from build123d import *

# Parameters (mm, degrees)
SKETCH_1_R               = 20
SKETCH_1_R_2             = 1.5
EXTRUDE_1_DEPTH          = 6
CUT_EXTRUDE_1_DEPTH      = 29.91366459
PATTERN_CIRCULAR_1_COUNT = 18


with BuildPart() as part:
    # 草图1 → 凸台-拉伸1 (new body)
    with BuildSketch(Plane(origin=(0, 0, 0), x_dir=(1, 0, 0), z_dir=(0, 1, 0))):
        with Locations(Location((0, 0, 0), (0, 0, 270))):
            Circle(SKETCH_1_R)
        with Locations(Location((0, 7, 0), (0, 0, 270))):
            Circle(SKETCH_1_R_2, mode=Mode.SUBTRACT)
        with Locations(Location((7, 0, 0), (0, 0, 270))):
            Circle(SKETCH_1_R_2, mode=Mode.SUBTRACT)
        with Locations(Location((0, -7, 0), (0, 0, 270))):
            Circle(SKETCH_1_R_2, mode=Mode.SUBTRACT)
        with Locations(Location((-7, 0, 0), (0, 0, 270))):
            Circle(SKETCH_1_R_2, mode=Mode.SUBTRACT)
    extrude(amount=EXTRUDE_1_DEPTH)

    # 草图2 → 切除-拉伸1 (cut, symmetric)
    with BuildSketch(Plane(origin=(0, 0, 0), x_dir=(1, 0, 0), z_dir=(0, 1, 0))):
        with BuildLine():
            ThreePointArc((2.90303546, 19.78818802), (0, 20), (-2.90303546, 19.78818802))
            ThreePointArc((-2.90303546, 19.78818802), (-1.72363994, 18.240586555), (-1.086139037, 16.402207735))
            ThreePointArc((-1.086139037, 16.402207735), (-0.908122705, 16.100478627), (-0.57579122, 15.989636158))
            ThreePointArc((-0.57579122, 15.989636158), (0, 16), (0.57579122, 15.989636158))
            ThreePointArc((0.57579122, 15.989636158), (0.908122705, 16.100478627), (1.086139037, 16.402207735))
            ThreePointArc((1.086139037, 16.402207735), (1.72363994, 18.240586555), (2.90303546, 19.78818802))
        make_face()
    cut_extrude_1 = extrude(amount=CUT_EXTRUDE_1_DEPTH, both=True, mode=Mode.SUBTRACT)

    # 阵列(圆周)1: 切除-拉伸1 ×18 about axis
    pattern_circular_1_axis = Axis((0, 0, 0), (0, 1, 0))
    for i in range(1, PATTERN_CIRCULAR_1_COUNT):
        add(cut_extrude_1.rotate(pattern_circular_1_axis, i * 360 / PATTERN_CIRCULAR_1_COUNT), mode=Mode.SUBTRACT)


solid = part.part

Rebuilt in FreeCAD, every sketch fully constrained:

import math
import FreeCAD as App
import Part
import Sketcher
from FreeCAD import Vector

doc = App.newDocument("Part")
body = doc.addObject("PartDesign::Body", "Body")

# Sketch on XZ plane
sketch1 = body.newObject("Sketcher::SketchObject", "Sketch")
sketch1.AttachmentSupport = (doc.getObject("XZ_Plane"), [""])
sketch1.MapMode = "FlatFace"
sketch1.addGeometry([
    Part.Circle(Vector(0, 0, 0), Vector(0, 0, 1), 20),  # 0
    Part.Circle(Vector(0, -7, 0), Vector(0, 0, 1), 1.5),  # 1
    Part.Circle(Vector(-7, 0, 0), Vector(0, 0, 1), 1.5),  # 2
    Part.Circle(Vector(0, 7, 0), Vector(0, 0, 1), 1.5),  # 3
    Part.Circle(Vector(7, 0, 0), Vector(0, 0, 1), 1.5),  # 4
], False)
sketch1.addConstraint([
    Sketcher.Constraint("Coincident", 0, 3, -1, 1),
    Sketcher.Constraint("Equal", 1, 2),
    Sketcher.Constraint("Equal", 2, 3),
    Sketcher.Constraint("Equal", 3, 4),
    Sketcher.Constraint("Symmetric", 1, 3, 3, 3, -1, 1),
    Sketcher.Constraint("Symmetric", 2, 3, 4, 3, -1, 1),
    Sketcher.Constraint("PointOnObject", 1, 3, -2),
    Sketcher.Constraint("PointOnObject", 2, 3, -1),
    Sketcher.Constraint("Diameter", 0, 40.0),
    Sketcher.Constraint("Diameter", 1, 3.0),
    Sketcher.Constraint("DistanceY", 1, 3, -1, 1, 7.0),
    Sketcher.Constraint("DistanceX", 2, 3, -1, 1, 7.0),
])
pad1 = body.newObject("PartDesign::Pad", "Pad")
pad1.Profile = sketch1
pad1.Length = 6
pad1.Reversed = True

# Sketch on XZ plane
sketch2 = body.newObject("Sketcher::SketchObject", "Sketch001")
sketch2.AttachmentSupport = (doc.getObject("XZ_Plane"), [""])
sketch2.MapMode = "FlatFace"
sketch2.addGeometry([
    Part.ArcOfCircle(Part.Circle(Vector(0, 0, 0), Vector(0, 0, 1), 20), math.radians(-98.346068), math.radians(-81.653932)),  # 0
    Part.ArcOfCircle(Part.Circle(Vector(-7.148363, -15.329713, 0), Vector(0, 0, 1), 6.156363), math.radians(-46.402836), math.radians(-10.032636)),  # 1
    Part.ArcOfCircle(Part.Circle(Vector(-0.593785, -16.489312, 0), Vector(0, 0, 1), 0.5), math.radians(87.937654), math.radians(169.967364)),  # 2
    Part.ArcOfCircle(Part.Circle(Vector(0, 0, 0), Vector(0, 0, 1), 16), math.radians(-92.062346), math.radians(-87.937654)),  # 3
    Part.ArcOfCircle(Part.Circle(Vector(0.593785, -16.489312, 0), Vector(0, 0, 1), 0.5), math.radians(10.032636), math.radians(92.062346)),  # 4
    Part.ArcOfCircle(Part.Circle(Vector(7.148363, -15.329713, 0), Vector(0, 0, 1), 6.156363), math.radians(-169.967364), math.radians(-133.597164)),  # 5
], False)
sketch2.addConstraint([
    Sketcher.Constraint("Coincident", 0, 1, 1, 1),
    Sketcher.Constraint("Tangent", 1, 2, 2, 2),
    Sketcher.Constraint("Tangent", 2, 1, 3, 1),
    Sketcher.Constraint("Tangent", 3, 2, 4, 2),
    Sketcher.Constraint("Tangent", 4, 1, 5, 1),
    Sketcher.Constraint("Coincident", 5, 2, 0, 2),
    Sketcher.Constraint("Coincident", 0, 3, -1, 1),
    Sketcher.Constraint("Coincident", 3, 3, -1, 1),
    Sketcher.Constraint("Equal", 2, 4),
    Sketcher.Constraint("Equal", 1, 5),
    Sketcher.Constraint("Symmetric", 1, 3, 5, 3, -2),
    Sketcher.Constraint("Radius", 0, 20.0),
    Sketcher.Constraint("Radius", 3, 16.0),
    Sketcher.Constraint("Radius", 2, 0.5),
    Sketcher.Constraint("Radius", 1, 6.156363),
    Sketcher.Constraint("DistanceY", 2, 3, 1, 3, 1.159599),
    Sketcher.Constraint("DistanceX", 0, 1, 5, 3, 10.051398),
])
pocket1 = body.newObject("PartDesign::Pocket", "Pocket")
pocket1.Profile = sketch2
pocket1.Length = 59.827329
pocket1.Midplane = True
doc.recompute()

polarpattern = body.newObject("PartDesign::PolarPattern", "PolarPattern")
polarpattern.Originals = [pocket1]
polarpattern.Axis = (doc.getObject("Y_Axis"), [""])
polarpattern.Angle = 360
polarpattern.Occurrences = 18
body.Tip = polarpattern

doc.recompute()
